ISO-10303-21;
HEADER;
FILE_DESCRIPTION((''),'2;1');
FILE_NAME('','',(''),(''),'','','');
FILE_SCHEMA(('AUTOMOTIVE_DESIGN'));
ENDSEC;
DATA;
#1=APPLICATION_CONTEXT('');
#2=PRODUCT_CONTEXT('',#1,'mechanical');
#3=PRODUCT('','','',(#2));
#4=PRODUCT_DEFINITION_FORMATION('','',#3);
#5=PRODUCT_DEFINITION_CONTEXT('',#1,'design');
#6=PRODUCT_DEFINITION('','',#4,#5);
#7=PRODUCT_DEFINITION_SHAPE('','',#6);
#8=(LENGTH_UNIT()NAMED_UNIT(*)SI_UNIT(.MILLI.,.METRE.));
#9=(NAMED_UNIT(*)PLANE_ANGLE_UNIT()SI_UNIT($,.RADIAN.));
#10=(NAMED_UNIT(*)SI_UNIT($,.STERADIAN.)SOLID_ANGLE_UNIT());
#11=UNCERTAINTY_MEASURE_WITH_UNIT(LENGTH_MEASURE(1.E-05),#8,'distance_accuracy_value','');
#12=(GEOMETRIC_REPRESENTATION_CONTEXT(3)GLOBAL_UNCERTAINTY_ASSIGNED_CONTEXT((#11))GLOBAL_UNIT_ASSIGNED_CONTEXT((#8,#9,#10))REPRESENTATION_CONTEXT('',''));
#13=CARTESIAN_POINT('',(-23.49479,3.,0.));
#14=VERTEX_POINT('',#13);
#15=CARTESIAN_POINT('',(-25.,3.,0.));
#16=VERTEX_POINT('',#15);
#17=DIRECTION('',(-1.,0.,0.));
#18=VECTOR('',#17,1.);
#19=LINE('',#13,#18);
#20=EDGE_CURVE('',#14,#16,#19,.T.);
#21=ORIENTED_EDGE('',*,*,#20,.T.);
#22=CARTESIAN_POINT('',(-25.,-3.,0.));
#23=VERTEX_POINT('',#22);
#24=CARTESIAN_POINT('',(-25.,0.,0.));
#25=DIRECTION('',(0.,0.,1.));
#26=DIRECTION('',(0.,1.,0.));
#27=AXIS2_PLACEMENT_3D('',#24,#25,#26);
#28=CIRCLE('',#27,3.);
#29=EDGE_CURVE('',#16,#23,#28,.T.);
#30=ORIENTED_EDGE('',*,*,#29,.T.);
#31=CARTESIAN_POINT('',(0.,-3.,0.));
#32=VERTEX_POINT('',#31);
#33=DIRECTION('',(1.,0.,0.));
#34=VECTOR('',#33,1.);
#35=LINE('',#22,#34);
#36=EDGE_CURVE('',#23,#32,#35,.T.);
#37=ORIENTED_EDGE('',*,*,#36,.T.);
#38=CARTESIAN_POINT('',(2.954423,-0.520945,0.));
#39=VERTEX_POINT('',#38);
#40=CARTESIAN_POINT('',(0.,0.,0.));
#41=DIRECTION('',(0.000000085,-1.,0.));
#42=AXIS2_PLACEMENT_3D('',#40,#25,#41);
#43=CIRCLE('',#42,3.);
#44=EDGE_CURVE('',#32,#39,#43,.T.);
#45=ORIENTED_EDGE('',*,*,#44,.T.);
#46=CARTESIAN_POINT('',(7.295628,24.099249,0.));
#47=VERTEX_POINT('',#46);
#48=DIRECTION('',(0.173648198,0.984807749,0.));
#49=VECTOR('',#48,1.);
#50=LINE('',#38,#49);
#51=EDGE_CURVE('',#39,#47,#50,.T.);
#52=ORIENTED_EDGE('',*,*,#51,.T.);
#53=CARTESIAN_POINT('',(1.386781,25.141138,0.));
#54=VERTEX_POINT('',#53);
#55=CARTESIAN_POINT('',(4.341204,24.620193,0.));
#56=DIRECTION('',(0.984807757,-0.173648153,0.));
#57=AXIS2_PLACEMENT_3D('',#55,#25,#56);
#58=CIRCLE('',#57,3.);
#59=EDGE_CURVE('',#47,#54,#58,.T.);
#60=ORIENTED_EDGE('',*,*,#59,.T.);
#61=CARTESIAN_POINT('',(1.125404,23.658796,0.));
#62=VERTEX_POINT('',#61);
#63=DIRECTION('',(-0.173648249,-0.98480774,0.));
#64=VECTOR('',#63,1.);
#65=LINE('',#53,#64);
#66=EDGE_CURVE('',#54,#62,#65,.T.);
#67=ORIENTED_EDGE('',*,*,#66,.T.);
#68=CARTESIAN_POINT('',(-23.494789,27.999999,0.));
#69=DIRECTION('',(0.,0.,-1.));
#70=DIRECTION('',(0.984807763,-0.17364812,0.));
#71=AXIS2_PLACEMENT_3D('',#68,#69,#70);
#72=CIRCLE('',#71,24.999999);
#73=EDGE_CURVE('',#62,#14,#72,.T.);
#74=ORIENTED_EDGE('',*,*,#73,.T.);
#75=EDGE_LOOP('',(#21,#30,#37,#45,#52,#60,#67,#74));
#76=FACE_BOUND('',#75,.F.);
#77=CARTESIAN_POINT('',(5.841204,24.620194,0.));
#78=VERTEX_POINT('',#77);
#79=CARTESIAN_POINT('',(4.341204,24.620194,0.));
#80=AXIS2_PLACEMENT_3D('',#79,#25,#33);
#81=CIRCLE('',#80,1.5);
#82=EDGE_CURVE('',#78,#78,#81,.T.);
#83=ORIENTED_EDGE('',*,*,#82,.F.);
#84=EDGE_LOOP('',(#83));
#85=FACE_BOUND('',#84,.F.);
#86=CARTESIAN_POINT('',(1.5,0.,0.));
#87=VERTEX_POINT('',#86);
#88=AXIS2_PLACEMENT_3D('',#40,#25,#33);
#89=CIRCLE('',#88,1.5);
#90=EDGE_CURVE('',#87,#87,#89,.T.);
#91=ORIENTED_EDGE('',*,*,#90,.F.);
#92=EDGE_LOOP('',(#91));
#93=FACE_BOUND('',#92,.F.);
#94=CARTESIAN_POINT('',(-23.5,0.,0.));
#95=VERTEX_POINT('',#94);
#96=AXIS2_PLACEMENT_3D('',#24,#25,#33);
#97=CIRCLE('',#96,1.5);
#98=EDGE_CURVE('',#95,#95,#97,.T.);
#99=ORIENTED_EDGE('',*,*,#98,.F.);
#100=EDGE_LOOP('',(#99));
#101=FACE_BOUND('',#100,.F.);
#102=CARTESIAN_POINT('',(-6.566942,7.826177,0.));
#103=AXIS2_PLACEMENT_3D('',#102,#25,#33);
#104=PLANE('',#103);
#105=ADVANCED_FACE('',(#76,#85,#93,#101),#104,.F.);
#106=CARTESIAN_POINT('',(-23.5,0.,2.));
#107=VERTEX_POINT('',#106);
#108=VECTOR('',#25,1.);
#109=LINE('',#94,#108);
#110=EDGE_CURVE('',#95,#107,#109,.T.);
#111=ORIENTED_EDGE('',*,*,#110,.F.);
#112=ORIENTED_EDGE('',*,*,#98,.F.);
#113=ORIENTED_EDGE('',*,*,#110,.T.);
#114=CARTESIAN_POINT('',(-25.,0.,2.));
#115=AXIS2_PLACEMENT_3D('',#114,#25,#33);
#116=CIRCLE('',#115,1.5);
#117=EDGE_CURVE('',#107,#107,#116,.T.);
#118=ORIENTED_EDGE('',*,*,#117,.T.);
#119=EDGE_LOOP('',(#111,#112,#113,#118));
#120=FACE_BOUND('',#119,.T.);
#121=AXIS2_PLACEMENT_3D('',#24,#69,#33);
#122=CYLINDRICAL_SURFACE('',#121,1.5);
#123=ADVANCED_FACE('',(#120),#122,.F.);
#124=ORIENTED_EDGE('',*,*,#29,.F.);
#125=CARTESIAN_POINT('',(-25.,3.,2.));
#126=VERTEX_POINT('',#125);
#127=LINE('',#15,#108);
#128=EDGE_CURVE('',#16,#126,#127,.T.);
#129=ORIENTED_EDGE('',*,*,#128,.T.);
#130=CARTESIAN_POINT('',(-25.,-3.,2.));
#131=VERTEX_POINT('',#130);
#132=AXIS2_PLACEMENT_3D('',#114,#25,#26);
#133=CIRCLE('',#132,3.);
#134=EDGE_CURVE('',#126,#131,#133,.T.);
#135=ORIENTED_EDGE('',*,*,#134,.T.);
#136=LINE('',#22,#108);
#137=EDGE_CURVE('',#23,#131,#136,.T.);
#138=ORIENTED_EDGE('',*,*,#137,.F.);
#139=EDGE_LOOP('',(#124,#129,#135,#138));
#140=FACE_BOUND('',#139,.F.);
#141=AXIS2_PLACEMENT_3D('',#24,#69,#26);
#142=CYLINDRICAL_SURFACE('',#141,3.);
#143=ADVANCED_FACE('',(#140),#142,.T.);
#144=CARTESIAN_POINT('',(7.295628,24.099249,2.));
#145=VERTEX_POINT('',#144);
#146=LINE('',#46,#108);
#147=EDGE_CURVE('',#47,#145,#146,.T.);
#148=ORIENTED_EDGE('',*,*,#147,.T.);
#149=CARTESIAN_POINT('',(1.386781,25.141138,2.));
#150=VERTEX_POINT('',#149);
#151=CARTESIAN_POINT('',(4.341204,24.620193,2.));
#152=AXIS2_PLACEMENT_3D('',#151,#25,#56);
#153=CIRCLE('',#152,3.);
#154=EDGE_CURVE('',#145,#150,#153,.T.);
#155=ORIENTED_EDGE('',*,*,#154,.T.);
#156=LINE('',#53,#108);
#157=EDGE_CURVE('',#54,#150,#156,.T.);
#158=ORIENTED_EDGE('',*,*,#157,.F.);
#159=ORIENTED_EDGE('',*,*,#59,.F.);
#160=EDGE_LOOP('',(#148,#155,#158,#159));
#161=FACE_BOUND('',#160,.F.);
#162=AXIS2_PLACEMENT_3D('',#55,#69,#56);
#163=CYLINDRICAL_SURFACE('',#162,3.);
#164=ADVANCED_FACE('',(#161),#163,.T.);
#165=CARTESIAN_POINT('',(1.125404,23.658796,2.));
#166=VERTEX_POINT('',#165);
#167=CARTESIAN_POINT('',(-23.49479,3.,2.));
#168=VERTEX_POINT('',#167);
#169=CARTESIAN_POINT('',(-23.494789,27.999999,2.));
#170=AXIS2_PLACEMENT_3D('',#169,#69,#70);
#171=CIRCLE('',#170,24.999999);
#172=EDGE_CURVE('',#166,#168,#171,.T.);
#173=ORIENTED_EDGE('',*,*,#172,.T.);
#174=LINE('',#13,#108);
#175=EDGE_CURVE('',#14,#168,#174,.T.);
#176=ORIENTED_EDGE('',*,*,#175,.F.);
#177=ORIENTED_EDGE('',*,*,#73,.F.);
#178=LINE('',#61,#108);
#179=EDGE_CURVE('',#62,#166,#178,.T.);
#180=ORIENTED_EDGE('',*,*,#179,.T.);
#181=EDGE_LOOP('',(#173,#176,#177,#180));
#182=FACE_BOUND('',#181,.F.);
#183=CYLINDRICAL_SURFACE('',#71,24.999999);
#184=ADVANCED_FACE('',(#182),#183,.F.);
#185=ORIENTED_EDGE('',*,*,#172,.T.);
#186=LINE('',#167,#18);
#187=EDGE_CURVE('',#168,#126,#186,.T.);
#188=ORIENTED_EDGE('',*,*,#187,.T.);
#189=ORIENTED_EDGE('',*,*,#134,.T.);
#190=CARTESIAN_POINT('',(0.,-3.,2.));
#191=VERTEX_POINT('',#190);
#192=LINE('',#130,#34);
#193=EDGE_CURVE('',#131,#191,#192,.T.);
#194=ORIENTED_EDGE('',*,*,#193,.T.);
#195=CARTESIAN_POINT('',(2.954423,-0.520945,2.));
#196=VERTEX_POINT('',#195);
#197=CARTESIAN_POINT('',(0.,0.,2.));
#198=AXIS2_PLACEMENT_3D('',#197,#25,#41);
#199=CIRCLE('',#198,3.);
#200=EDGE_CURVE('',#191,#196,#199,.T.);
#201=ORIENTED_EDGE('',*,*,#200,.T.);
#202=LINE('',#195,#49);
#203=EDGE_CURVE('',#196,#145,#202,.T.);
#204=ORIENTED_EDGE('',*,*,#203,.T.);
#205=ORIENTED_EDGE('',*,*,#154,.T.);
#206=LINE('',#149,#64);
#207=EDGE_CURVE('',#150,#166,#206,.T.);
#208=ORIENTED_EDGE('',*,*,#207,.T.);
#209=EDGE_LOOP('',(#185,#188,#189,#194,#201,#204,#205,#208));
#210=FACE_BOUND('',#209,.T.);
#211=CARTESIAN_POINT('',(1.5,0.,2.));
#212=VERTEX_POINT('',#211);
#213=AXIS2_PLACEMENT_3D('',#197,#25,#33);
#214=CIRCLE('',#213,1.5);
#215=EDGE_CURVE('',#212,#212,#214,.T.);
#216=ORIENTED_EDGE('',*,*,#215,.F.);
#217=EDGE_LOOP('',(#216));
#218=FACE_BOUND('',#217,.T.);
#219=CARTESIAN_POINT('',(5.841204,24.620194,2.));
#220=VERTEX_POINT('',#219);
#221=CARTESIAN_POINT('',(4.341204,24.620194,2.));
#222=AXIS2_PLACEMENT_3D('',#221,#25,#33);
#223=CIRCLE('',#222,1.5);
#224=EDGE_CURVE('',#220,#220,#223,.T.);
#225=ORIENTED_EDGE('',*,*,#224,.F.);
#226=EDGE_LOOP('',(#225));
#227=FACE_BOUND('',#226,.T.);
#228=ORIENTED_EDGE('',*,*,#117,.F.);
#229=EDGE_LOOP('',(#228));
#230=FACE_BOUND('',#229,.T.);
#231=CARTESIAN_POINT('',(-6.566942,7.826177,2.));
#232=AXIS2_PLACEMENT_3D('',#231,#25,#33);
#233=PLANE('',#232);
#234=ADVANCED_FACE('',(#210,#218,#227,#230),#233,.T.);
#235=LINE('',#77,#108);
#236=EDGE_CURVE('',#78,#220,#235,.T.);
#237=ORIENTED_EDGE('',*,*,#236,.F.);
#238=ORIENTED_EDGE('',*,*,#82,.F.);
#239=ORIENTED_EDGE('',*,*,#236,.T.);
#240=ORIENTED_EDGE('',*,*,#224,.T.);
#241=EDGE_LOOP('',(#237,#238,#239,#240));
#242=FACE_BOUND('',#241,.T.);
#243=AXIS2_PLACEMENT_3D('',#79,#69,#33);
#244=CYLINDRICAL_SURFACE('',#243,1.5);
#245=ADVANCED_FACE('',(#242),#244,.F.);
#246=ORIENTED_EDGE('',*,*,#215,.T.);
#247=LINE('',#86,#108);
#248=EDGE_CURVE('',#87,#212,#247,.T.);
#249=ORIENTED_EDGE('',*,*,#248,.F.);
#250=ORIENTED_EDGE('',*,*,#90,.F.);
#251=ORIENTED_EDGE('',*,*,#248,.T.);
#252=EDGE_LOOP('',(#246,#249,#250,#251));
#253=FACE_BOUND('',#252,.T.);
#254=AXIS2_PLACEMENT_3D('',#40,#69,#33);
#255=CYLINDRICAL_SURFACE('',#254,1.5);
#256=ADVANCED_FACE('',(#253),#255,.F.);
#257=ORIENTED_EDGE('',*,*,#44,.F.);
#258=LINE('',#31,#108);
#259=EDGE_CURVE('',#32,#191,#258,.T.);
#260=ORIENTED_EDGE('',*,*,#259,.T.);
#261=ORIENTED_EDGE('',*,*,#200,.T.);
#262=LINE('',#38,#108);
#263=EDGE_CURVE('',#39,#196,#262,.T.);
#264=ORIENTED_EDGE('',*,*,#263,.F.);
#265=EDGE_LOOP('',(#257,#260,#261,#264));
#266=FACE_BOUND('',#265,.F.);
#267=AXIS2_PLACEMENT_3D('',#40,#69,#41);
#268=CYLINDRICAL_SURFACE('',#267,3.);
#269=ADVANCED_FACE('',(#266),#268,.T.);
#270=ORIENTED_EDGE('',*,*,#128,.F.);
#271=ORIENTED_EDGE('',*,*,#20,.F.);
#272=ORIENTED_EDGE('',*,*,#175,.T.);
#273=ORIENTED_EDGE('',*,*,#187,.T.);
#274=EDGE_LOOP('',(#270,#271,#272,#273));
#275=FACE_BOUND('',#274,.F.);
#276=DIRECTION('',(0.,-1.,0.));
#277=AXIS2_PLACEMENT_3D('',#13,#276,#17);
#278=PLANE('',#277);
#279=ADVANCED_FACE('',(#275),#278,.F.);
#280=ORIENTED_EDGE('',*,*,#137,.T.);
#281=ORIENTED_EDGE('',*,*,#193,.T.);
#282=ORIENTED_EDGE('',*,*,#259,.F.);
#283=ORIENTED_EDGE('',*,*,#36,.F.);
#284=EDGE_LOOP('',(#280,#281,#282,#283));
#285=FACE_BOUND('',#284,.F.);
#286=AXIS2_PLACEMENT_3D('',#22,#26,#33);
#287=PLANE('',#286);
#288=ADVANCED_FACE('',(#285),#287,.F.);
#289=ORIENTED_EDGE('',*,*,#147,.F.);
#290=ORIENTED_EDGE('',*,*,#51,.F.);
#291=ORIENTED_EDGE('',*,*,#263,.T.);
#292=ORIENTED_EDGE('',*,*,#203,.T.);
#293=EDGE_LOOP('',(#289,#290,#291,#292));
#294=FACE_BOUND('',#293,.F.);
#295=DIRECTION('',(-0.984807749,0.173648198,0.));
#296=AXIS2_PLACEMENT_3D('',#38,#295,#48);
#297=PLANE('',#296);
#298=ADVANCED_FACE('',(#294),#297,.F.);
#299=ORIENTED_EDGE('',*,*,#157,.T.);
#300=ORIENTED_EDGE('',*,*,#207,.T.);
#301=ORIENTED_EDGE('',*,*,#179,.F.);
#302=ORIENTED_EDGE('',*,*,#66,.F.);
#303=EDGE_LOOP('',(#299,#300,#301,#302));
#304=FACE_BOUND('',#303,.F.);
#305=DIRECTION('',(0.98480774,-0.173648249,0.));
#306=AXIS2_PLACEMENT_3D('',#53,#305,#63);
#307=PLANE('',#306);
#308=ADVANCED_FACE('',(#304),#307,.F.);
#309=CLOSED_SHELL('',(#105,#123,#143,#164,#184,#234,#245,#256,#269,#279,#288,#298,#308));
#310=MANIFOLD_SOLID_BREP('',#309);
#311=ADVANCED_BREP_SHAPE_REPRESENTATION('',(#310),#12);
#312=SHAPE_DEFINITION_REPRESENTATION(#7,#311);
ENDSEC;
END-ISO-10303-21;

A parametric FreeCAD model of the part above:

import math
import FreeCAD as App
import Part
import Sketcher

V = App.Vector
Q = App.Units.Quantity

doc = App.newDocument("Part")
body = doc.addObject("PartDesign::Body", "Body")

# Sketch on XY plane
sketch1 = body.newObject("Sketcher::SketchObject", "Sketch")
sketch1.AttachmentSupport = (doc.getObject("XY_Plane"), [""])
sketch1.MapMode = "FlatFace"
sketch1.addGeometry(Part.ArcOfCircle(Part.Circle(V(0, 0, 0), V(0, 0, 1), 3), math.radians(-90), math.radians(-10)), False)
sketch1.addGeometry(Part.LineSegment(V(3, -0.5, 0), V(7.3, 24.1, 0)), False)
sketch1.addGeometry(Part.ArcOfCircle(Part.Circle(V(4.3, 24.6, 0), V(0, 0, 1), 3), math.radians(-10), math.radians(170)), False)
sketch1.addGeometry(Part.LineSegment(V(1.4, 25.1, 0), V(1.1, 23.7, 0)), False)
sketch1.addGeometry(Part.ArcOfCircle(Part.Circle(V(-23.5, 28, 0), V(0, 0, 1), 25), math.radians(-90), math.radians(-10)), False)
sketch1.addGeometry(Part.LineSegment(V(-23.5, 3, 0), V(-25, 3, 0)), False)
sketch1.addGeometry(Part.ArcOfCircle(Part.Circle(V(-25, 0, 0), V(0, 0, 1), 3), math.radians(90), math.radians(270)), False)
sketch1.addGeometry(Part.LineSegment(V(-25, -3, 0), V(0, -3, 0)), False)
sketch1.addGeometry(Part.Circle(V(-25, 0, 0), V(0, 0, 1), 1.5), False)
sketch1.addGeometry(Part.Circle(V(0, 0, 0), V(0, 0, 1), 1.5), False)
sketch1.addGeometry(Part.Circle(V(4.3, 24.6, 0), V(0, 0, 1), 1.5), False)
sketch1.addConstraint(Sketcher.Constraint("Tangent", 0, 2, 1, 1))
sketch1.addConstraint(Sketcher.Constraint("Tangent", 1, 2, 2, 1))
sketch1.addConstraint(Sketcher.Constraint("Tangent", 2, 2, 3, 1))
sketch1.addConstraint(Sketcher.Constraint("Tangent", 3, 2, 4, 2))
sketch1.addConstraint(Sketcher.Constraint("Tangent", 4, 1, 5, 1))
sketch1.addConstraint(Sketcher.Constraint("Tangent", 5, 2, 6, 1))
sketch1.addConstraint(Sketcher.Constraint("Tangent", 6, 2, 7, 1))
sketch1.addConstraint(Sketcher.Constraint("Tangent", 7, 2, 0, 1))
sketch1.addConstraint(Sketcher.Constraint("Horizontal", 5))
sketch1.addConstraint(Sketcher.Constraint("Horizontal", 7))
sketch1.addConstraint(Sketcher.Constraint("Coincident", 0, 3, -1, 1))
sketch1.addConstraint(Sketcher.Constraint("Coincident", 9, 3, -1, 1))
sketch1.addConstraint(Sketcher.Constraint("Coincident", 8, 3, 6, 3))
sketch1.addConstraint(Sketcher.Constraint("Coincident", 10, 3, 2, 3))
sketch1.addConstraint(Sketcher.Constraint("Equal", 0, 2))
sketch1.addConstraint(Sketcher.Constraint("Equal", 2, 6))
sketch1.addConstraint(Sketcher.Constraint("Equal", 8, 9))
sketch1.addConstraint(Sketcher.Constraint("Equal", 9, 10))
sketch1.addConstraint(Sketcher.Constraint("Parallel", 1, 3))
sketch1.addConstraint(Sketcher.Constraint("Diameter", 8, 3.0))
sketch1.addConstraint(Sketcher.Constraint("Radius", 0, 3.0))
sketch1.addConstraint(Sketcher.Constraint("Radius", 4, 24.999999))
sketch1.addConstraint(Sketcher.Constraint("DistanceX", 7, 1, 7, 2, 25.0))
sketch1.addConstraint(Sketcher.Constraint("Angle", 1, Q("79.999999 deg")))
sketch1.addConstraint(Sketcher.Constraint("Distance", 1, 25.0))
pad1 = body.newObject("PartDesign::Pad", "Pad")
pad1.Profile = sketch1
pad1.Length = 2

doc.recompute()
